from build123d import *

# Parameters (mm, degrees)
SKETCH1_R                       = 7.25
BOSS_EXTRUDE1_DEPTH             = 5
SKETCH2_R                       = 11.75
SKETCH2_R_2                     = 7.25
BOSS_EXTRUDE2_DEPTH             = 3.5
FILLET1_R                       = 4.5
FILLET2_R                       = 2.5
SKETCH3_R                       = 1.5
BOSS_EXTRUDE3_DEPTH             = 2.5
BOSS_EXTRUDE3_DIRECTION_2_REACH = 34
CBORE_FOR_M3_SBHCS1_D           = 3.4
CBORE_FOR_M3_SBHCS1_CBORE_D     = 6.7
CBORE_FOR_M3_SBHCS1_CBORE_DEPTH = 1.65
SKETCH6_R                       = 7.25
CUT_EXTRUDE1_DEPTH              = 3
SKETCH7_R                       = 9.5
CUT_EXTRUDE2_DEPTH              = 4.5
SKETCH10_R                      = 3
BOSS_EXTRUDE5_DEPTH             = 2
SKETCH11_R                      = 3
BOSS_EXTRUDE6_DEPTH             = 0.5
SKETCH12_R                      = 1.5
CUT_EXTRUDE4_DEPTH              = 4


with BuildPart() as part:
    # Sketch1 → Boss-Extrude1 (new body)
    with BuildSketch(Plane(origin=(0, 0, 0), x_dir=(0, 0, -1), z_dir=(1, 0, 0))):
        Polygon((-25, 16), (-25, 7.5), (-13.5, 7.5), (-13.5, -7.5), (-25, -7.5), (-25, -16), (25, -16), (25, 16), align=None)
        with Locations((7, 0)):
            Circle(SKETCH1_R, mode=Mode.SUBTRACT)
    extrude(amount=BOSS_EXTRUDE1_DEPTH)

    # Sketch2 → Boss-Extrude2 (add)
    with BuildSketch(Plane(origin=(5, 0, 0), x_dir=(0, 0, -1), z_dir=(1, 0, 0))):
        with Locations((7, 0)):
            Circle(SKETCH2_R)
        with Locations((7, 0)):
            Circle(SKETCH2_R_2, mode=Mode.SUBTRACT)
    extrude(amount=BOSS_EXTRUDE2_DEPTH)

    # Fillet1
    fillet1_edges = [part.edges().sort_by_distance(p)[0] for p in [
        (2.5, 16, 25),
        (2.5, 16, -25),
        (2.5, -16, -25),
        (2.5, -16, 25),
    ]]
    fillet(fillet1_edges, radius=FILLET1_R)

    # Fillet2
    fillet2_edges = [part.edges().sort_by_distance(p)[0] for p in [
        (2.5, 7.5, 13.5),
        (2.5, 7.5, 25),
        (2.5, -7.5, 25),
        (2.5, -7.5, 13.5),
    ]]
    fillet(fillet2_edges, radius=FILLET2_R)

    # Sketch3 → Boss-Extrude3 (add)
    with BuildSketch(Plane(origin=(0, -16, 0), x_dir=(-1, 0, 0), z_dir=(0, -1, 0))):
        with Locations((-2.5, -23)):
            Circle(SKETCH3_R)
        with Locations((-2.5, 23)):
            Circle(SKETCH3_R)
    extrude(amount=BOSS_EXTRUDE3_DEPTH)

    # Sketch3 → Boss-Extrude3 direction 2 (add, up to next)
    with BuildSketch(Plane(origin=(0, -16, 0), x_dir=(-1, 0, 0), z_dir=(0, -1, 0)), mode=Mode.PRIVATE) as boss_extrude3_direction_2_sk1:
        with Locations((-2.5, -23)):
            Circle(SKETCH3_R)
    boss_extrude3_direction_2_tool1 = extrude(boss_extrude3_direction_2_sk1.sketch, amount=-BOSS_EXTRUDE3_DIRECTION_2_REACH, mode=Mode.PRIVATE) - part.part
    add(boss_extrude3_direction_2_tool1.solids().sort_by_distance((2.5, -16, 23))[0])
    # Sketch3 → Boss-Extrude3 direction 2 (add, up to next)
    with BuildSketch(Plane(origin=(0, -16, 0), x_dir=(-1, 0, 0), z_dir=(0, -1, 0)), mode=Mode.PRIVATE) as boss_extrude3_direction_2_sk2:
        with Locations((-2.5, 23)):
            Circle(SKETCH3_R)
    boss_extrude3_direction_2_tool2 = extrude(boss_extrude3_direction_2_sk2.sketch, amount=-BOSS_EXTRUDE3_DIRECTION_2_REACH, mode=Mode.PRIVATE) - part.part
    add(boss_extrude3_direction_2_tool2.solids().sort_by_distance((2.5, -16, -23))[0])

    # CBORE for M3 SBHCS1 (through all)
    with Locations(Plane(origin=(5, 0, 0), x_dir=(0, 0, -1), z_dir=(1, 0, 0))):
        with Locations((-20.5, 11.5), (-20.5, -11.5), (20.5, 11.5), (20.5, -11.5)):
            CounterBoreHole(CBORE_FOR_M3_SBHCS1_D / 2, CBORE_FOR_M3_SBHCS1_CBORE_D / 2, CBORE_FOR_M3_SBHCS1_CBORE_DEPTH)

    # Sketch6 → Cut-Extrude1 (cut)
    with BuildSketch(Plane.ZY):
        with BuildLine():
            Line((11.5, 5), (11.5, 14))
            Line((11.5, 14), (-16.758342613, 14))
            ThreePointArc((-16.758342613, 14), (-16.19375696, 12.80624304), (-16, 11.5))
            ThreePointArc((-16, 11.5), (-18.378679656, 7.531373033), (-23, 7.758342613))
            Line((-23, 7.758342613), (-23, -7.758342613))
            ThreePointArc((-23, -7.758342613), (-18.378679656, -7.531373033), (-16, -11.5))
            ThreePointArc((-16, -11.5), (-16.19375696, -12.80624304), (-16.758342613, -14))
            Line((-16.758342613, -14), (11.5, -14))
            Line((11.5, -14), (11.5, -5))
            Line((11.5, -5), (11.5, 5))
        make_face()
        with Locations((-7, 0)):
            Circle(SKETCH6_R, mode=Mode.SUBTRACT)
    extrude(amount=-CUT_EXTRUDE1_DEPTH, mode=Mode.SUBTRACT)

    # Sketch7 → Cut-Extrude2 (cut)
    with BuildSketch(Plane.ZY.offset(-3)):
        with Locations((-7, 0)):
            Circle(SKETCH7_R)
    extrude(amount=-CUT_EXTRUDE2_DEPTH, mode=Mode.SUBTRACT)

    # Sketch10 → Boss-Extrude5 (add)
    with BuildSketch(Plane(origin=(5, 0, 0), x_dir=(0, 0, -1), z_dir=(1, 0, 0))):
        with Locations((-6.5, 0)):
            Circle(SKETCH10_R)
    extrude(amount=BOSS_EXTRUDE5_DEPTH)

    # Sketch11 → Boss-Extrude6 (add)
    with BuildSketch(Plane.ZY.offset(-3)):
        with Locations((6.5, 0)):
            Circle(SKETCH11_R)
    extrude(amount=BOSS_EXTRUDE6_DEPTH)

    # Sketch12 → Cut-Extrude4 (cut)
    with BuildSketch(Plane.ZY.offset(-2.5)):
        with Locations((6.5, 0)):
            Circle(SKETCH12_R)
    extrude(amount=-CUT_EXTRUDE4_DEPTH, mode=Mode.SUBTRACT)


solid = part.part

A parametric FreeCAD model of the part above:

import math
import FreeCAD as App
import Part
import Sketcher

V = App.Vector
Q = App.Units.Quantity


def edges_at(feature, points):
    """Names of the edges that pass closest to the given points."""
    edges = feature.Shape.Edges
    near = lambda p: min(range(len(edges)), key=lambda i: edges[i].distToShape(Part.Vertex(*p))[0])
    return sorted({f"Edge{near(p) + 1}" for p in points})

doc = App.newDocument("Part")
body = doc.addObject("PartDesign::Body", "Body")
body.AllowCompound = True

# Sketch on YZ plane
sketch1 = body.newObject("Sketcher::SketchObject", "Sketch")
sketch1.AttachmentSupport = (doc.getObject("YZ_Plane"), [""])
sketch1.MapMode = "FlatFace"
sketch1.addGeometry(Part.LineSegment(V(16, 25, 0), V(8, 25, 0)), False)
sketch1.addGeometry(Part.LineSegment(V(8, 25, 0), V(8, 14, 0)), False)
sketch1.addGeometry(Part.LineSegment(V(8, 14, 0), V(-8, 14, 0)), False)
sketch1.addGeometry(Part.LineSegment(V(-8, 14, 0), V(-8, 25, 0)), False)
sketch1.addGeometry(Part.LineSegment(V(-8, 25, 0), V(-16, 25, 0)), False)
sketch1.addGeometry(Part.LineSegment(V(-16, 25, 0), V(-16, -25, 0)), False)
sketch1.addGeometry(Part.LineSegment(V(-16, -25, 0), V(16, -25, 0)), False)
sketch1.addGeometry(Part.LineSegment(V(16, -25, 0), V(16, 25, 0)), False)
sketch1.addGeometry(Part.Circle(V(0, -7, 0), V(0, 0, 1), 7), False)
sketch1.addConstraint(Sketcher.Constraint("Coincident", 0, 2, 1, 1))
sketch1.addConstraint(Sketcher.Constraint("Coincident", 1, 2, 2, 1))
sketch1.addConstraint(Sketcher.Constraint("Coincident", 2, 2, 3, 1))
sketch1.addConstraint(Sketcher.Constraint("Coincident", 3, 2, 4, 1))
sketch1.addConstraint(Sketcher.Constraint("Coincident", 4, 2, 5, 1))
sketch1.addConstraint(Sketcher.Constraint("Coincident", 5, 2, 6, 1))
sketch1.addConstraint(Sketcher.Constraint("Coincident", 6, 2, 7, 1))
sketch1.addConstraint(Sketcher.Constraint("Coincident", 7, 2, 0, 1))
sketch1.addConstraint(Sketcher.Constraint("Horizontal", 0))
sketch1.addConstraint(Sketcher.Constraint("Vertical", 1))
sketch1.addConstraint(Sketcher.Constraint("Horizontal", 2))
sketch1.addConstraint(Sketcher.Constraint("Vertical", 3))
sketch1.addConstraint(Sketcher.Constraint("Horizontal", 4))
sketch1.addConstraint(Sketcher.Constraint("Vertical", 5))
sketch1.addConstraint(Sketcher.Constraint("Horizontal", 6))
sketch1.addConstraint(Sketcher.Constraint("Vertical", 7))
sketch1.addConstraint(Sketcher.Constraint("Symmetric", 4, 2, 6, 2, -1, 1))
sketch1.addConstraint(Sketcher.Constraint("Symmetric", 0, 2, 3, 2, -2))
sketch1.addConstraint(Sketcher.Constraint("PointOnObject", 8, 3, -2))
sketch1.addConstraint(Sketcher.Constraint("Diameter", 8, Q("14.5 mm")))
sketch1.addConstraint(Sketcher.Constraint("DistanceX", 2, 2, 2, 1, Q("15 mm")))
sketch1.addConstraint(Sketcher.Constraint("DistanceX", 6, 1, 6, 2, Q("32 mm")))
sketch1.addConstraint(Sketcher.Constraint("DistanceY", 5, 2, 5, 1, Q("50 mm")))
sketch1.addConstraint(Sketcher.Constraint("DistanceY", 1, 2, 1, 1, Q("11.5 mm")))
sketch1.addConstraint(Sketcher.Constraint("DistanceY", 8, 3, -1, 1, Q("7 mm")))
pad1 = body.newObject("PartDesign::Pad", "Pad")
pad1.Profile = sketch1
pad1.Length = 5

# Sketch on YZ plane
sketch2 = body.newObject("Sketcher::SketchObject", "Sketch001")
sketch2.AttachmentSupport = (doc.getObject("YZ_Plane"), [""])
sketch2.MapMode = "FlatFace"
sketch2.AttachmentOffset = App.Placement(V(0, 0, 5), App.Rotation())
sketch2.addGeometry(Part.Circle(V(0, -7, 0), V(0, 0, 1), 12), False)
sketch2.addGeometry(Part.Circle(V(0, -7, 0), V(0, 0, 1), 7), False)
sketch2.addConstraint(Sketcher.Constraint("Coincident", 1, 3, 0, 3))
sketch2.addConstraint(Sketcher.Constraint("PointOnObject", 0, 3, -2))
sketch2.addConstraint(Sketcher.Constraint("Diameter", 0, Q("23.5 mm")))
sketch2.addConstraint(Sketcher.Constraint("Diameter", 1, Q("14.5 mm")))
sketch2.addConstraint(Sketcher.Constraint("DistanceY", 0, 3, -1, 1, Q("7 mm")))
pad2 = body.newObject("PartDesign::Pad", "Pad001")
pad2.Profile = sketch2
pad2.Length = 3.5
doc.recompute()

fillet = body.newObject("PartDesign::Fillet", "Fillet")
fillet.Base = (pad2, edges_at(pad2, [
    (2.5, 16, 25),
    (2.5, 16, -25),
    (2.5, -16, -25),
    (2.5, -16, 25),
]))
fillet.Radius = 4.5
doc.recompute()

fillet2 = body.newObject("PartDesign::Fillet", "Fillet001")
fillet2.Base = (fillet, edges_at(fillet, [
    (2.5, 7.5, 13.5),
    (2.5, 7.5, 25),
    (2.5, -7.5, 25),
    (2.5, -7.5, 13.5),
]))
fillet2.Radius = 2.5

# Sketch on XZ plane
sketch3 = body.newObject("Sketcher::SketchObject", "Sketch002")
sketch3.AttachmentSupport = (doc.getObject("XZ_Plane"), [""])
sketch3.MapMode = "FlatFace"
sketch3.AttachmentOffset = App.Placement(V(0, 0, 16), App.Rotation())
sketch3.addGeometry(Part.Circle(V(2.5, 23, 0), V(0, 0, 1), 1.5), False)
sketch3.addGeometry(Part.Circle(V(2.5, -23, 0), V(0, 0, 1), 1.5), False)
sketch3.addConstraint(Sketcher.Constraint("Equal", 0, 1))
sketch3.addConstraint(Sketcher.Constraint("Symmetric", 0, 3, 1, 3, -1))
sketch3.addConstraint(Sketcher.Constraint("Diameter", 0, Q("3 mm")))
sketch3.addConstraint(Sketcher.Constraint("DistanceY", -1, 1, 0, 3, Q("23 mm")))
sketch3.addConstraint(Sketcher.Constraint("DistanceX", -1, 1, 0, 3, Q("2.5 mm")))
pad3 = body.newObject("PartDesign::Pad", "Pad002")
pad3.Profile = sketch3
pad3.Length = 2.5

# Sketch on XZ plane
sketch4 = body.newObject("Sketcher::SketchObject", "Sketch003")
sketch4.AttachmentSupport = (doc.getObject("XZ_Plane"), [""])
sketch4.MapMode = "FlatFace"
sketch4.AttachmentOffset = App.Placement(V(0, 0, 16), App.Rotation())
sketch4.addGeometry(Part.Circle(V(2.5, 23, 0), V(0, 0, 1), 1.5), False)
sketch4.addConstraint(Sketcher.Constraint("Diameter", 0, Q("3 mm")))
sketch4.addConstraint(Sketcher.Constraint("DistanceY", -1, 1, 0, 3, Q("23 mm")))
sketch4.addConstraint(Sketcher.Constraint("DistanceX", -1, 1, 0, 3, Q("2.5 mm")))
pad4 = body.newObject("PartDesign::Pad", "Pad003")
pad4.Profile = sketch4
pad4.Type = "UpToFirst"
pad4.Reversed = True

# Sketch on XZ plane
sketch5 = body.newObject("Sketcher::SketchObject", "Sketch004")
sketch5.AttachmentSupport = (doc.getObject("XZ_Plane"), [""])
sketch5.MapMode = "FlatFace"
sketch5.AttachmentOffset = App.Placement(V(0, 0, 16), App.Rotation())
sketch5.addGeometry(Part.Circle(V(2.5, -23, 0), V(0, 0, 1), 1.5), False)
sketch5.addConstraint(Sketcher.Constraint("Diameter", 0, Q("3 mm")))
sketch5.addConstraint(Sketcher.Constraint("DistanceY", 0, 3, -1, 1, Q("23 mm")))
sketch5.addConstraint(Sketcher.Constraint("DistanceX", -1, 1, 0, 3, Q("2.5 mm")))
pad5 = body.newObject("PartDesign::Pad", "Pad004")
pad5.Profile = sketch5
pad5.Type = "UpToFirst"
pad5.Reversed = True

# Sketch on YZ plane
sketch6 = body.newObject("Sketcher::SketchObject", "Sketch005")
sketch6.AttachmentSupport = (doc.getObject("YZ_Plane"), [""])
sketch6.MapMode = "FlatFace"
sketch6.AttachmentOffset = App.Placement(V(0, 0, 5), App.Rotation())
sketch6.addGeometry(Part.Circle(V(11.5, 20.5, 0), V(0, 0, 1), 1.7), False)
sketch6.addGeometry(Part.Circle(V(-11.5, 20.5, 0), V(0, 0, 1), 1.7), False)
sketch6.addGeometry(Part.Circle(V(11.5, -20.5, 0), V(0, 0, 1), 1.7), False)
sketch6.addGeometry(Part.Circle(V(-11.5, -20.5, 0), V(0, 0, 1), 1.7), False)
sketch6.addConstraint(Sketcher.Constraint("Equal", 0, 1))
sketch6.addConstraint(Sketcher.Constraint("Equal", 1, 2))
sketch6.addConstraint(Sketcher.Constraint("Equal", 2, 3))
sketch6.addConstraint(Sketcher.Constraint("Symmetric", 1, 3, 2, 3, -1, 1))
sketch6.addConstraint(Sketcher.Constraint("Symmetric", 0, 3, 3, 3, -1, 1))
sketch6.addConstraint(Sketcher.Constraint("Symmetric", 0, 3, 1, 3, -2))
sketch6.addConstraint(Sketcher.Constraint("Diameter", 0, Q("3.4 mm")))
sketch6.addConstraint(Sketcher.Constraint("DistanceX", 1, 3, 0, 3, Q("23 mm")))
sketch6.addConstraint(Sketcher.Constraint("DistanceY", 2, 3, 0, 3, Q("41 mm")))
doc.recompute()
hole = body.newObject("PartDesign::Hole", "Hole")
hole.Profile = sketch6
hole.ThreadType = "None"
hole.Diameter = 3.4
hole.DepthType = "ThroughAll"
hole.HoleCutType = "Counterbore"
hole.HoleCutDiameter = 6.7
hole.HoleCutDepth = 1.65

# Sketch on YZ plane
sketch7 = body.newObject("Sketcher::SketchObject", "Sketch006")
sketch7.AttachmentSupport = (doc.getObject("YZ_Plane"), [""])
sketch7.MapMode = "FlatFace"
sketch7.addGeometry(Part.LineSegment(V(14, 11.5, 0), V(14, -16.8, 0)), False)
sketch7.addGeometry(Part.ArcOfCircle(Part.Circle(V(11.5, -20.5, 0), V(0, 0, 1), 4.5), math.radians(56), math.radians(90)), False)
sketch7.addGeometry(Part.ArcOfCircle(Part.Circle(V(11.5, -20.5, 0), V(0, 0, 1), 4.5), math.radians(90), math.radians(214)), False)
sketch7.addGeometry(Part.LineSegment(V(7.8, -23, 0), V(-7.8, -23, 0)), False)
sketch7.addGeometry(Part.ArcOfCircle(Part.Circle(V(-11.5, -20.5, 0), V(0, 0, 1), 4.5), math.radians(-34), math.radians(90)), False)
sketch7.addGeometry(Part.ArcOfCircle(Part.Circle(V(-11.5, -20.5, 0), V(0, 0, 1), 4.5), math.radians(90), math.radians(124)), False)
sketch7.addGeometry(Part.LineSegment(V(-14, -16.8, 0), V(-14, 11.5, 0)), False)
sketch7.addGeometry(Part.LineSegment(V(-14, 11.5, 0), V(14, 11.5, 0)), False)
sketch7.addGeometry(Part.Circle(V(0, -7, 0), V(0, 0, 1), 7.2), False)
sketch7.addConstraint(Sketcher.Constraint("Coincident", 0, 2, 1, 1))
sketch7.addConstraint(Sketcher.Constraint("Tangent", 1, 2, 2, 1))
sketch7.addConstraint(Sketcher.Constraint("Coincident", 2, 2, 3, 1))
sketch7.addConstraint(Sketcher.Constraint("Coincident", 3, 2, 4, 1))
sketch7.addConstraint(Sketcher.Constraint("Tangent", 4, 2, 5, 1))
sketch7.addConstraint(Sketcher.Constraint("Coincident", 5, 2, 6, 1))
sketch7.addConstraint(Sketcher.Constraint("Coincident", 6, 2, 7, 1))
sketch7.addConstraint(Sketcher.Constraint("Coincident", 7, 2, 0, 1))
sketch7.addConstraint(Sketcher.Constraint("Vertical", 0))
sketch7.addConstraint(Sketcher.Constraint("Horizontal", 3))
sketch7.addConstraint(Sketcher.Constraint("Vertical", 6))
sketch7.addConstraint(Sketcher.Constraint("Horizontal", 7))
sketch7.addConstraint(Sketcher.Constraint("Equal", 1, 2))
sketch7.addConstraint(Sketcher.Constraint("Equal", 2, 4))
sketch7.addConstraint(Sketcher.Constraint("Equal", 4, 5))
sketch7.addConstraint(Sketcher.Constraint("Symmetric", 1, 3, 4, 3, -2))
sketch7.addConstraint(Sketcher.Constraint("PointOnObject", 8, 3, -2))
sketch7.addConstraint(Sketcher.Constraint("Horizontal", 0, 2, 5, 2))
sketch7.addConstraint(Sketcher.Constraint("Vertical", 2, 3, 1, 2))
sketch7.addConstraint(Sketcher.Constraint("Vertical", 5, 3, 4, 2))
sketch7.addConstraint(Sketcher.Constraint("Diameter", 8, Q("14.5 mm")))
sketch7.addConstraint(Sketcher.Constraint("Radius", 1, Q("4.5 mm")))
sketch7.addConstraint(Sketcher.Constraint("DistanceX", 7, 1, 7, 2, Q("28 mm")))
sketch7.addConstraint(Sketcher.Constraint("DistanceY", 8, 3, -1, 1, Q("7 mm")))
sketch7.addConstraint(Sketcher.Constraint("DistanceY", 1, 2, -1, 1, Q("16 mm")))
sketch7.addConstraint(Sketcher.Constraint("DistanceY", 2, 2, -1, 1, Q("23 mm")))
sketch7.addConstraint(Sketcher.Constraint("DistanceX", 4, 3, 1, 3, Q("23 mm")))
sketch7.addConstraint(Sketcher.Constraint("DistanceY", 4, 3, 6, 2, Q("32 mm")))
pocket1 = body.newObject("PartDesign::Pocket", "Pocket")
pocket1.Profile = sketch7
pocket1.Length = 3
pocket1.Reversed = True

# Sketch on YZ plane
sketch8 = body.newObject("Sketcher::SketchObject", "Sketch007")
sketch8.AttachmentSupport = (doc.getObject("YZ_Plane"), [""])
sketch8.MapMode = "FlatFace"
sketch8.AttachmentOffset = App.Placement(V(0, 0, 3), App.Rotation())
sketch8.addGeometry(Part.Circle(V(0, -7, 0), V(0, 0, 1), 10), False)
sketch8.addConstraint(Sketcher.Constraint("PointOnObject", 0, 3, -2))
sketch8.addConstraint(Sketcher.Constraint("Diameter", 0, Q("19 mm")))
sketch8.addConstraint(Sketcher.Constraint("DistanceY", 0, 3, -1, 1, Q("7 mm")))
pocket2 = body.newObject("PartDesign::Pocket", "Pocket001")
pocket2.Profile = sketch8
pocket2.Length = 4.5
pocket2.Reversed = True

# Sketch on YZ plane
sketch9 = body.newObject("Sketcher::SketchObject", "Sketch008")
sketch9.AttachmentSupport = (doc.getObject("YZ_Plane"), [""])
sketch9.MapMode = "FlatFace"
sketch9.AttachmentOffset = App.Placement(V(0, 0, 5), App.Rotation())
sketch9.addGeometry(Part.Circle(V(0, 6.5, 0), V(0, 0, 1), 3), False)
sketch9.addConstraint(Sketcher.Constraint("PointOnObject", 0, 3, -2))
sketch9.addConstraint(Sketcher.Constraint("Diameter", 0, Q("6 mm")))
sketch9.addConstraint(Sketcher.Constraint("DistanceY", -1, 1, 0, 3, Q("6.5 mm")))
pad6 = body.newObject("PartDesign::Pad", "Pad005")
pad6.Profile = sketch9
pad6.Length = 2

# Sketch on YZ plane
sketch10 = body.newObject("Sketcher::SketchObject", "Sketch009")
sketch10.AttachmentSupport = (doc.getObject("YZ_Plane"), [""])
sketch10.MapMode = "FlatFace"
sketch10.AttachmentOffset = App.Placement(V(0, 0, 3), App.Rotation())
sketch10.addGeometry(Part.Circle(V(0, 6.5, 0), V(0, 0, 1), 3), False)
sketch10.addConstraint(Sketcher.Constraint("PointOnObject", 0, 3, -2))
sketch10.addConstraint(Sketcher.Constraint("Diameter", 0, Q("6 mm")))
sketch10.addConstraint(Sketcher.Constraint("DistanceY", -1, 1, 0, 3, Q("6.5 mm")))
pad7 = body.newObject("PartDesign::Pad", "Pad006")
pad7.Profile = sketch10
pad7.Length = 0.5
pad7.Reversed = True

# Sketch on YZ plane
sketch11 = body.newObject("Sketcher::SketchObject", "Sketch010")
sketch11.AttachmentSupport = (doc.getObject("YZ_Plane"), [""])
sketch11.MapMode = "FlatFace"
sketch11.AttachmentOffset = App.Placement(V(0, 0, 2.5), App.Rotation())
sketch11.addGeometry(Part.Circle(V(0, 6.5, 0), V(0, 0, 1), 1.5), False)
sketch11.addConstraint(Sketcher.Constraint("PointOnObject", 0, 3, -2))
sketch11.addConstraint(Sketcher.Constraint("Diameter", 0, Q("3 mm")))
sketch11.addConstraint(Sketcher.Constraint("DistanceY", -1, 1, 0, 3, Q("6.5 mm")))
pocket3 = body.newObject("PartDesign::Pocket", "Pocket002")
pocket3.Profile = sketch11
pocket3.Length = 4
pocket3.Reversed = True

doc.recompute()
